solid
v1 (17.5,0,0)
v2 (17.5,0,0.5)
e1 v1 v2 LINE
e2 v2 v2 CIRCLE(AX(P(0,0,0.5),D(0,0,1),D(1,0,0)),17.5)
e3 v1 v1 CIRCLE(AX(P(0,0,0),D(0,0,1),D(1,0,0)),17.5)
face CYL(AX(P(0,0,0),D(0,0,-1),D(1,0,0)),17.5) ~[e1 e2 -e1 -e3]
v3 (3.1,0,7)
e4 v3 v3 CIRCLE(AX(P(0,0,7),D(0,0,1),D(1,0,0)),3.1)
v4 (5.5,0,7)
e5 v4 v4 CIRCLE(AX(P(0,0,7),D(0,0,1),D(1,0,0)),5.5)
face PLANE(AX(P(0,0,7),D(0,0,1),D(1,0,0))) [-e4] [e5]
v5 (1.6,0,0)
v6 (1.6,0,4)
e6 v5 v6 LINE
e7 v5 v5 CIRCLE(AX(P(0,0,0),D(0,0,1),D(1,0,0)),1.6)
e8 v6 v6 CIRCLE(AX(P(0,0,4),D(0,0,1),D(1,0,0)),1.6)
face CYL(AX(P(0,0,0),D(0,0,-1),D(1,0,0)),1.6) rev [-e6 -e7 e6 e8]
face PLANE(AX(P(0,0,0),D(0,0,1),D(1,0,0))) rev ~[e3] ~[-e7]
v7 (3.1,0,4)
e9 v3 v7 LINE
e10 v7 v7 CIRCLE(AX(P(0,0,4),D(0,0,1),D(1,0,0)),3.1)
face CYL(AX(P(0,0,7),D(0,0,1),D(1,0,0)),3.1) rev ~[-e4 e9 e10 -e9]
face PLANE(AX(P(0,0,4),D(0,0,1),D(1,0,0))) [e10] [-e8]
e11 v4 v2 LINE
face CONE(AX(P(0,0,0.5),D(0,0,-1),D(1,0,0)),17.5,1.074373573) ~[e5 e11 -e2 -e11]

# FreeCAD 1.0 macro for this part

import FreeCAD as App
import Part
import Sketcher


def edges_at(feature, points):
    """Names of the edges that pass closest to the given points."""
    edges = feature.Shape.Edges
    near = lambda p: min(range(len(edges)), key=lambda i: edges[i].distToShape(Part.Vertex(*p))[0])
    return sorted({f"Edge{near(p) + 1}" for p in points})

doc = App.newDocument("Part")
params = doc.addObject("Spreadsheet::Sheet", "Params")
for row, (alias, value) in enumerate([
    ("sketch1_diameter", "35 mm"),
    ("sketch1_diameter2", "3.2 mm"),
    ("pad1_length", "7 mm"),
    ("sketch2_diameter", "6.2 mm"),
    ("sketch2_diameter2", "3.2 mm"),
    ("pocket1_length", "3 mm"),
    ("chamfer_size", "12 mm"),
    ("chamfer_size2", "6.5 mm"),
], start=1):
    params.set(f"A{row}", alias)
    params.set(f"B{row}", "=" + value)
    params.setAlias(f"B{row}", alias)

body = doc.addObject("PartDesign::Body", "Body")

sketch1 = body.newObject("Sketcher::SketchObject", "Sketch")
sketch1.AttachmentSupport = (doc.getObject("XY_Plane"), [""])
sketch1.MapMode = "FlatFace"
sketch1.addGeometry(Part.Circle(App.Vector(0, 0, 0), App.Vector(0, 0, 1), 17.5), False)
sketch1.addGeometry(Part.Circle(App.Vector(0, 0, 0), App.Vector(0, 0, 1), 1.6), False)
sketch1.addConstraint(Sketcher.Constraint("Coincident", 0, 3, -1, 1))
sketch1.addConstraint(Sketcher.Constraint("Coincident", 1, 3, -1, 1))
sketch1.addConstraint(Sketcher.Constraint("Diameter", 0, 35.0))
sketch1.addConstraint(Sketcher.Constraint("Diameter", 1, 3.2))
sketch1.setExpression("Constraints[2]", "Params.sketch1_diameter")
sketch1.setExpression("Constraints[3]", "Params.sketch1_diameter2")
pad1 = body.newObject("PartDesign::Pad", "Pad")
pad1.Profile = sketch1
pad1.setExpression("Length", "Params.pad1_length")

sketch2 = body.newObject("Sketcher::SketchObject", "Sketch001")
sketch2.AttachmentSupport = (doc.getObject("XY_Plane"), [""])
sketch2.MapMode = "FlatFace"
sketch2.AttachmentOffset = App.Placement(App.Vector(0, 0, 7), App.Rotation())
sketch2.addGeometry(Part.Circle(App.Vector(0, 0, 0), App.Vector(0, 0, 1), 3.1), False)
sketch2.addGeometry(Part.Circle(App.Vector(0, 0, 0), App.Vector(0, 0, 1), 1.6), False)
sketch2.addConstraint(Sketcher.Constraint("Coincident", 0, 3, -1, 1))
sketch2.addConstraint(Sketcher.Constraint("Coincident", 1, 3, -1, 1))
sketch2.addConstraint(Sketcher.Constraint("Diameter", 0, 6.2))
sketch2.addConstraint(Sketcher.Constraint("Diameter", 1, 3.2))
sketch2.setExpression("Constraints[2]", "Params.sketch2_diameter")
sketch2.setExpression("Constraints[3]", "Params.sketch2_diameter2")
pocket1 = body.newObject("PartDesign::Pocket", "Pocket")
pocket1.Profile = sketch2
pocket1.setExpression("Length", "Params.pocket1_length")
doc.recompute()

chamfer = body.newObject("PartDesign::Chamfer", "Chamfer")
chamfer.Base = (pocket1, edges_at(pocket1, [(-17.5, 0, 7)]))
chamfer.ChamferType = "Two distances"
chamfer.setExpression("Size", "Params.chamfer_size")
chamfer.setExpression("Size2", "Params.chamfer_size2")
chamfer.FlipDirection = True

doc.recompute()
